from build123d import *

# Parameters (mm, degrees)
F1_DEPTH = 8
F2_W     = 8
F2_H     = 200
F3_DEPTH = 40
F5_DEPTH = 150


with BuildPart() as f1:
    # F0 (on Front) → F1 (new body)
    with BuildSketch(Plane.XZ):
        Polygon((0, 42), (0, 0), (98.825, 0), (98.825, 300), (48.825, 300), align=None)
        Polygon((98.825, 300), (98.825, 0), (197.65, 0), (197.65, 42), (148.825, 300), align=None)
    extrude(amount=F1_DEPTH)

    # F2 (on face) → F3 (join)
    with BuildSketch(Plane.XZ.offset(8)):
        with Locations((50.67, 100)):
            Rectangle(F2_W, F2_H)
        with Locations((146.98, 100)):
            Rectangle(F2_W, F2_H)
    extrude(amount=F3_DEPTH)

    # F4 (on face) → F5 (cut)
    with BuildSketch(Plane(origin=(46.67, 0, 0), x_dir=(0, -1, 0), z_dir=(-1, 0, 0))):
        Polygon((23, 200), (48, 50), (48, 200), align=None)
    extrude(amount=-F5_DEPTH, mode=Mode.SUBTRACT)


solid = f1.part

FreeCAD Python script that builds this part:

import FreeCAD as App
import Part
import Sketcher

doc = App.newDocument("Part")
params = doc.addObject("Spreadsheet::Sheet", "Params")
for row, (alias, value) in enumerate([
    ("sketch1_width", "100 mm"),
    ("sketch1_height", "42 mm"),
    ("sketch1_width2", "197.65 mm"),
    ("pad1_length", "8 mm"),
    ("sketch2_width", "8 mm"),
    ("sketch2_height", "200 mm"),
    ("pad2_length", "40 mm"),
    ("sketch3_width", "25 mm"),
    ("sketch3_height", "150 mm"),
    ("pocket1_length", "150 mm"),
], start=1):
    params.set(f"A{row}", alias)
    params.set(f"B{row}", "=" + value)
    params.setAlias(f"B{row}", alias)

body = doc.addObject("PartDesign::Body", "Body")

sketch1 = body.newObject("Sketcher::SketchObject", "Sketch")
sketch1.AttachmentSupport = (doc.getObject("XZ_Plane"), [""])
sketch1.MapMode = "FlatFace"
sketch1.addGeometry([
    Part.LineSegment(App.Vector(0, 42, 0), App.Vector(0, 0, 0)),
    Part.LineSegment(App.Vector(0, 0, 0), App.Vector(197.65, 0, 0)),
    Part.LineSegment(App.Vector(197.65, 0, 0), App.Vector(197.65, 42, 0)),
    Part.LineSegment(App.Vector(197.65, 42, 0), App.Vector(148.825, 300, 0)),
    Part.LineSegment(App.Vector(148.825, 300, 0), App.Vector(48.825, 300, 0)),
    Part.LineSegment(App.Vector(48.825, 300, 0), App.Vector(0, 42, 0)),
], False)
sketch1.addConstraint([
    Sketcher.Constraint("Coincident", 0, 2, 1, 1),
    Sketcher.Constraint("Coincident", 1, 2, 2, 1),
    Sketcher.Constraint("Coincident", 2, 2, 3, 1),
    Sketcher.Constraint("Coincident", 3, 2, 4, 1),
    Sketcher.Constraint("Coincident", 4, 2, 5, 1),
    Sketcher.Constraint("Coincident", 5, 2, 0, 1),
    Sketcher.Constraint("Vertical", 0),
    Sketcher.Constraint("Horizontal", 1),
    Sketcher.Constraint("Vertical", 2),
    Sketcher.Constraint("Horizontal", 4),
    Sketcher.Constraint("Coincident", 0, 2, -1, 1),
    Sketcher.Constraint("Horizontal", 2, 2, 5, 2),
    Sketcher.Constraint("Equal", 3, 5),
    Sketcher.Constraint("DistanceX", 4, 2, 4, 1, 100.0),
    Sketcher.Constraint("DistanceY", 0, 2, 0, 1, 42.0),
    Sketcher.Constraint("DistanceY", -1, 1, 3, 2, 300.0),
    Sketcher.Constraint("DistanceX", 1, 1, 1, 2, 197.65),
])
sketch1.setExpression("Constraints[13]", "Params.sketch1_width")
sketch1.setExpression("Constraints[14]", "Params.sketch1_height")
sketch1.setExpression("Constraints[16]", "Params.sketch1_width2")
pad1 = body.newObject("PartDesign::Pad", "Pad")
pad1.Profile = sketch1
pad1.setExpression("Length", "Params.pad1_length")

sketch2 = body.newObject("Sketcher::SketchObject", "Sketch001")
sketch2.AttachmentSupport = (doc.getObject("XZ_Plane"), [""])
sketch2.MapMode = "FlatFace"
sketch2.AttachmentOffset = App.Placement(App.Vector(0, 0, 8), App.Rotation())
sketch2.addGeometry([
    Part.LineSegment(App.Vector(46.67, 200, 0), App.Vector(46.67, 0, 0)),
    Part.LineSegment(App.Vector(46.67, 0, 0), App.Vector(54.67, 0, 0)),
    Part.LineSegment(App.Vector(54.67, 0, 0), App.Vector(54.67, 200, 0)),
    Part.LineSegment(App.Vector(54.67, 200, 0), App.Vector(46.67, 200, 0)),
    Part.LineSegment(App.Vector(142.98, 200, 0), App.Vector(142.98, 0, 0)),
    Part.LineSegment(App.Vector(142.98, 0, 0), App.Vector(150.98, 0, 0)),
    Part.LineSegment(App.Vector(150.98, 0, 0), App.Vector(150.98, 200, 0)),
    Part.LineSegment(App.Vector(150.98, 200, 0), App.Vector(142.98, 200, 0)),
], False)
sketch2.addConstraint([
    Sketcher.Constraint("Coincident", 0, 2, 1, 1),
    Sketcher.Constraint("Coincident", 1, 2, 2, 1),
    Sketcher.Constraint("Coincident", 2, 2, 3, 1),
    Sketcher.Constraint("Coincident", 3, 2, 0, 1),
    Sketcher.Constraint("Coincident", 4, 2, 5, 1),
    Sketcher.Constraint("Coincident", 5, 2, 6, 1),
    Sketcher.Constraint("Coincident", 6, 2, 7, 1),
    Sketcher.Constraint("Coincident", 7, 2, 4, 1),
    Sketcher.Constraint("Vertical", 0),
    Sketcher.Constraint("Horizontal", 1),
    Sketcher.Constraint("Vertical", 2),
    Sketcher.Constraint("Horizontal", 3),
    Sketcher.Constraint("Vertical", 4),
    Sketcher.Constraint("Horizontal", 5),
    Sketcher.Constraint("Vertical", 6),
    Sketcher.Constraint("Horizontal", 7),
    Sketcher.Constraint("PointOnObject", 0, 2, -1),
    Sketcher.Constraint("PointOnObject", 4, 2, -1),
    Sketcher.Constraint("Horizontal", 3, 2, 6, 2),
    Sketcher.Constraint("Equal", 3, 5),
    Sketcher.Constraint("DistanceX", 1, 1, 1, 2, 8.0),
    Sketcher.Constraint("DistanceY", 0, 2, 0, 1, 200.0),
    Sketcher.Constraint("DistanceX", -1, 1, 0, 2, 46.67),
    Sketcher.Constraint("DistanceX", -1, 1, 4, 2, 142.98),
])
sketch2.setExpression("Constraints[20]", "Params.sketch2_width")
sketch2.setExpression("Constraints[21]", "Params.sketch2_height")
pad2 = body.newObject("PartDesign::Pad", "Pad001")
pad2.Profile = sketch2
pad2.setExpression("Length", "Params.pad2_length")

sketch3 = body.newObject("Sketcher::SketchObject", "Sketch002")
sketch3.AttachmentSupport = (doc.getObject("YZ_Plane"), [""])
sketch3.MapMode = "FlatFace"
sketch3.AttachmentOffset = App.Placement(App.Vector(0, 0, 46.67), App.Rotation())
sketch3.addGeometry([
    Part.LineSegment(App.Vector(-23, 200, 0), App.Vector(-48, 50, 0)),
    Part.LineSegment(App.Vector(-48, 50, 0), App.Vector(-48, 200, 0)),
    Part.LineSegment(App.Vector(-48, 200, 0), App.Vector(-23, 200, 0)),
], False)
sketch3.addConstraint([
    Sketcher.Constraint("Coincident", 0, 2, 1, 1),
    Sketcher.Constraint("Coincident", 1, 2, 2, 1),
    Sketcher.Constraint("Coincident", 2, 2, 0, 1),
    Sketcher.Constraint("Vertical", 1),
    Sketcher.Constraint("Horizontal", 2),
    Sketcher.Constraint("DistanceX", 2, 1, 2, 2, 25.0),
    Sketcher.Constraint("DistanceY", 1, 1, 1, 2, 150.0),
    Sketcher.Constraint("DistanceX", 0, 2, -1, 1, 48.0),
    Sketcher.Constraint("DistanceY", -1, 1, 0, 2, 50.0),
])
sketch3.setExpression("Constraints[5]", "Params.sketch3_width")
sketch3.setExpression("Constraints[6]", "Params.sketch3_height")
pocket1 = body.newObject("PartDesign::Pocket", "Pocket")
pocket1.Profile = sketch3
pocket1.setExpression("Length", "Params.pocket1_length")
pocket1.Reversed = True

doc.recompute()
